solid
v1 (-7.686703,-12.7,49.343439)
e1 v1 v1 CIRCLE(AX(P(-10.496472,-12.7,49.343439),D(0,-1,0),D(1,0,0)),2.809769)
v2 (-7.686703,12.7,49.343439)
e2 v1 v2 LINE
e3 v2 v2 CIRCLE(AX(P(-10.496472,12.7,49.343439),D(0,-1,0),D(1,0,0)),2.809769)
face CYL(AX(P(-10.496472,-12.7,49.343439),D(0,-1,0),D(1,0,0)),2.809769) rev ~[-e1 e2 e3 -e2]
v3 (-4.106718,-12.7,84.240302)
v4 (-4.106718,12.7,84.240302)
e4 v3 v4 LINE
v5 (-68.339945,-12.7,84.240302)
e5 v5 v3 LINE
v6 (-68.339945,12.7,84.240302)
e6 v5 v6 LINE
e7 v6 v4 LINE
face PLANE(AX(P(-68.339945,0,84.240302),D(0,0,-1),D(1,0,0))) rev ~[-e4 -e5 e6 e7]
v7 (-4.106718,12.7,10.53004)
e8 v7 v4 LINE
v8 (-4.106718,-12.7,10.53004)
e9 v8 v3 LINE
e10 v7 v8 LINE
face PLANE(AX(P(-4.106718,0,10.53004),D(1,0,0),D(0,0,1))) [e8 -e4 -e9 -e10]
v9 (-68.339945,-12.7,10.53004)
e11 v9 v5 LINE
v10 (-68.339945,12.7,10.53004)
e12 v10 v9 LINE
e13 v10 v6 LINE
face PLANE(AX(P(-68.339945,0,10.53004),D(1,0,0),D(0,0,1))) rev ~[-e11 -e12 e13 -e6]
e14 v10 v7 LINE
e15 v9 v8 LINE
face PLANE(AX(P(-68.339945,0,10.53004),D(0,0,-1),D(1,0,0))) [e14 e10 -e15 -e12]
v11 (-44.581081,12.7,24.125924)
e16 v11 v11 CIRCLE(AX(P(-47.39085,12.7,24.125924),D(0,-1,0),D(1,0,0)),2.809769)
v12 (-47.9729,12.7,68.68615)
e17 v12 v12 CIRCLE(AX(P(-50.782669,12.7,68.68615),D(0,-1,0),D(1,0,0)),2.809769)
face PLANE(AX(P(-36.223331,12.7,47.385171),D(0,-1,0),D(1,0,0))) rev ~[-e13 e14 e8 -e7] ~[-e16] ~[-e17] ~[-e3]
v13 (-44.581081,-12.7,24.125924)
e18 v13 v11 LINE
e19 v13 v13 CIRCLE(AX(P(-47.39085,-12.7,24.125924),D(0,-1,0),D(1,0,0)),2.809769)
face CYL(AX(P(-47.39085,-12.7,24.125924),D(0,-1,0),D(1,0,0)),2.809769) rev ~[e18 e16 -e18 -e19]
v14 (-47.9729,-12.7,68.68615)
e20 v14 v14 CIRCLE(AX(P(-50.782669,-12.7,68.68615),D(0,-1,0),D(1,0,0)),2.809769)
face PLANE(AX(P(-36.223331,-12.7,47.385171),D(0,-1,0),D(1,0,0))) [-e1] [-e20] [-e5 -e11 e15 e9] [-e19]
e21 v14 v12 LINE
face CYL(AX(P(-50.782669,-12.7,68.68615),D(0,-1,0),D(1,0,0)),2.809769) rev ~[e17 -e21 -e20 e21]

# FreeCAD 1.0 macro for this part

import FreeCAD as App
import Part
import Sketcher

V = App.Vector
Q = App.Units.Quantity


def add_polygon(sketch, points):
    """Adds a closed chain of lines whose ends are joined by coincident constraints."""
    first, n = sketch.GeometryCount, len(points)
    for a, b in zip(points, points[1:] + points[:1]):
        sketch.addGeometry(Part.LineSegment(App.Vector(*a, 0), App.Vector(*b, 0)), False)
    for i in range(n):
        sketch.addConstraint(Sketcher.Constraint("Coincident", first + i, 2, first + (i + 1) % n, 1))

doc = App.newDocument("Part")
body = doc.addObject("PartDesign::Body", "Body")

# Sketch on XZ plane
sketch1 = body.newObject("Sketcher::SketchObject", "Sketch")
sketch1.AttachmentSupport = (doc.getObject("XZ_Plane"), [""])
sketch1.MapMode = "FlatFace"
add_polygon(sketch1, [(-68, 84), (-68, 11), (-4, 11), (-4, 84)])  # lines 0-3
sketch1.addConstraint([
    Sketcher.Constraint("Vertical", 0),
    Sketcher.Constraint("Horizontal", 1),
    Sketcher.Constraint("Vertical", 2),
    Sketcher.Constraint("Horizontal", 3),
    Sketcher.Constraint("DistanceY", 0, 2, 0, 1, 73.710262),
    Sketcher.Constraint("DistanceY", -1, 1, 2, 2, 84.240302),
    Sketcher.Constraint("DistanceX", 1, 1, 1, 2, 64.233227),
    Sketcher.Constraint("DistanceX", 0, 2, -1, 1, 68.339945),
])
pad1 = body.newObject("PartDesign::Pad", "Pad")
pad1.Profile = sketch1
pad1.Length = Q("1 in")
pad1.Midplane = True

# Sketch on XZ plane
sketch2 = body.newObject("Sketcher::SketchObject", "Sketch001")
sketch2.AttachmentSupport = (doc.getObject("XZ_Plane"), [""])
sketch2.MapMode = "FlatFace"
sketch2.AttachmentOffset = App.Placement(V(0, 0, 0.5 * 25.4), App.Rotation())
sketch2.addGeometry([
    Part.Circle(V(-50.8, 68.7, 0), V(0, 0, 1), 2.8),
    Part.Circle(V(-47.4, 24.1, 0), V(0, 0, 1), 2.8),
    Part.Circle(V(-10.5, 49.3, 0), V(0, 0, 1), 2.8),
], False)
sketch2.addConstraint([
    Sketcher.Constraint("Equal", 0, 1),
    Sketcher.Constraint("Equal", 1, 2),
    Sketcher.Constraint("Diameter", 0, 5.619538),
    Sketcher.Constraint("DistanceX", 0, 3, -1, 1, 50.782669),
    Sketcher.Constraint("DistanceY", -1, 1, 0, 3, 68.68615),
    Sketcher.Constraint("DistanceX", 1, 3, -1, 1, 47.39085),
    Sketcher.Constraint("DistanceY", -1, 1, 2, 3, 49.343439),
    Sketcher.Constraint("DistanceX", 1, 3, 2, 3, 36.894378),
    Sketcher.Constraint("DistanceY", -1, 1, 1, 3, 24.125924),
])
pocket1 = body.newObject("PartDesign::Pocket", "Pocket")
pocket1.Profile = sketch2
pocket1.Type = "ThroughAll"

doc.recompute()
